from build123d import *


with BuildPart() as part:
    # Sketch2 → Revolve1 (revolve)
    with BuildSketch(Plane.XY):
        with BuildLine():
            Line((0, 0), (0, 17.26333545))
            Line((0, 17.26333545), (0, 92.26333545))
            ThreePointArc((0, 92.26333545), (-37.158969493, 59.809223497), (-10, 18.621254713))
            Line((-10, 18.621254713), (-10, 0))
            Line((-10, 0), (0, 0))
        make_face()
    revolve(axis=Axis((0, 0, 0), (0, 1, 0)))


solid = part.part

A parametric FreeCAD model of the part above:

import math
import FreeCAD as App
import Part
import Sketcher
from FreeCAD import Vector
Q = App.Units.Quantity

doc = App.newDocument("Part")
params = doc.addObject("Spreadsheet::Sheet", "Params")
for row, (alias, value) in enumerate([
    ("sketch1_radius", "37.5 mm"),
    ("sketch1_width", "10 mm"),
    ("revolution_angle", "360 deg"),
], start=1):
    params.set(f"A{row}", alias)
    params.set(f"B{row}", "=" + value)
    params.setAlias(f"B{row}", alias)

body = doc.addObject("PartDesign::Body", "Body")

# Sketch on XY plane
sketch1 = body.newObject("Sketcher::SketchObject", "Sketch")
sketch1.AttachmentSupport = (doc.getObject("XY_Plane"), [""])
sketch1.MapMode = "FlatFace"
sketch1.addGeometry(Part.LineSegment(Vector(0, 0, 0), Vector(0, 92, 0)), False)
sketch1.addGeometry(Part.ArcOfCircle(Part.Circle(Vector(0, 55, 0), Vector(0, 0, 1), 38), math.radians(90), math.radians(255)), False)
sketch1.addGeometry(Part.LineSegment(Vector(-10, 19, 0), Vector(-10, 0, 0)), False)
sketch1.addGeometry(Part.LineSegment(Vector(-10, 0, 0), Vector(0, 0, 0)), False)
sketch1.addConstraint(Sketcher.Constraint("Coincident", 0, 2, 1, 1))
sketch1.addConstraint(Sketcher.Constraint("Coincident", 1, 2, 2, 1))
sketch1.addConstraint(Sketcher.Constraint("Coincident", 2, 2, 3, 1))
sketch1.addConstraint(Sketcher.Constraint("Coincident", 3, 2, 0, 1))
sketch1.addConstraint(Sketcher.Constraint("Vertical", 0))
sketch1.addConstraint(Sketcher.Constraint("Vertical", 2))
sketch1.addConstraint(Sketcher.Constraint("Horizontal", 3))
sketch1.addConstraint(Sketcher.Constraint("Coincident", 3, 2, -1, 1))
sketch1.addConstraint(Sketcher.Constraint("PointOnObject", 1, 3, -2))
sketch1.addConstraint(Sketcher.Constraint("Radius", 1, Q("37.5 mm")))
sketch1.addConstraint(Sketcher.Constraint("DistanceX", 3, 1, 3, 2, Q("10 mm")))
sketch1.addConstraint(Sketcher.Constraint("DistanceY", 0, 1, 0, 2, Q("92.263335 mm")))
sketch1.setExpression("Constraints[9]", "Params.sketch1_radius")
sketch1.setExpression("Constraints[10]", "Params.sketch1_width")
revolution = body.newObject("PartDesign::Revolution", "Revolution")
revolution.Profile = sketch1
revolution.ReferenceAxis = (sketch1, ["V_Axis"])
revolution.setExpression("Angle", "Params.revolution_angle")

doc.recompute()
